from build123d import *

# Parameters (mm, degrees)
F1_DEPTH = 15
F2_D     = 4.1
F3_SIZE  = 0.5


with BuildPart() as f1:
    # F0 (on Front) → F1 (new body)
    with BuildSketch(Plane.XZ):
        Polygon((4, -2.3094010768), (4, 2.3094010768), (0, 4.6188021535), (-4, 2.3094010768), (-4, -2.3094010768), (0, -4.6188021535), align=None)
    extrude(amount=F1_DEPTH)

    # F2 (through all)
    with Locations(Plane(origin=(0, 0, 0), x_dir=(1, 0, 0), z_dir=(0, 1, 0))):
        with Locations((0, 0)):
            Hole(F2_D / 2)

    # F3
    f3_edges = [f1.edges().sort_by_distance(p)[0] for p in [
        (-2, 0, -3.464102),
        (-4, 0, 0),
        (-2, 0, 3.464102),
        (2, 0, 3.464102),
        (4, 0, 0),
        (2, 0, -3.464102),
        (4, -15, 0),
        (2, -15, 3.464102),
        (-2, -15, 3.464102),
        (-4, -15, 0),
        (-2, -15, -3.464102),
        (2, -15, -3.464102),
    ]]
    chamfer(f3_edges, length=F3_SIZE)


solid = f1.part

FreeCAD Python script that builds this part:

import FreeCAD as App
import Part
import Sketcher
from FreeCAD import Vector
Q = App.Units.Quantity


def edges_at(feature, points):
    """Names of the edges that pass closest to the given points."""
    edges = feature.Shape.Edges
    near = lambda p: min(range(len(edges)), key=lambda i: edges[i].distToShape(Part.Vertex(*p))[0])
    return sorted({f"Edge{near(p) + 1}" for p in points})


def add_polygon(sketch, points):
    """Adds a closed chain of lines whose ends are joined by coincident constraints."""
    first, n = sketch.GeometryCount, len(points)
    for a, b in zip(points, points[1:] + points[:1]):
        sketch.addGeometry(Part.LineSegment(App.Vector(*a, 0), App.Vector(*b, 0)), False)
    for i in range(n):
        sketch.addConstraint(Sketcher.Constraint("Coincident", first + i, 2, first + (i + 1) % n, 1))

doc = App.newDocument("Part")
body = doc.addObject("PartDesign::Body", "Body")

# Sketch on XZ plane
sketch1 = doc.addObject("Sketcher::SketchObject", "Sketch")
body.addObject(sketch1)
sketch1.AttachmentSupport = (doc.XZ_Plane, [""])
sketch1.MapMode = "FlatFace"
add_polygon(sketch1, [(4, -2.309401), (4, 2.309401), (0, 4.618802), (-4, 2.309401), (-4, -2.309401), (0, -4.618802)])  # lines 0-5
sketch1.addConstraint(Sketcher.Constraint("Vertical", 0))
sketch1.addConstraint(Sketcher.Constraint("Vertical", 3))
sketch1.addConstraint(Sketcher.Constraint("Symmetric", 0, 2, 3, 2, -1, 1))
sketch1.addConstraint(Sketcher.Constraint("Symmetric", 1, 2, 4, 2, -1, 1))
sketch1.addConstraint(Sketcher.Constraint("PointOnObject", 1, 2, -2))
sketch1.addConstraint(Sketcher.Constraint("Parallel", 2, 5))
sketch1.addConstraint(Sketcher.Constraint("Horizontal", 0, 2, 2, 2))
sketch1.addConstraint(Sketcher.Constraint("Angle", 1, Q("150 deg")))
sketch1.addConstraint(Sketcher.Constraint("DistanceX", -1, 1, 0, 2, Q("4 mm")))
sketch1.addConstraint(Sketcher.Constraint("DistanceY", -1, 1, 0, 2, Q("2.309401 mm")))
pad1 = doc.addObject("PartDesign::Pad", "Pad")
body.addObject(pad1)
pad1.Profile = sketch1
pad1.Length = 15

# Sketch on XZ plane
sketch2 = doc.addObject("Sketcher::SketchObject", "Sketch001")
body.addObject(sketch2)
sketch2.AttachmentSupport = (doc.XZ_Plane, [""])
sketch2.MapMode = "FlatFace"
sketch2.addGeometry(Part.Circle(Vector(0, 0, 0), Vector(0, 0, 1), 2.05), False)
sketch2.addConstraint(Sketcher.Constraint("Coincident", 0, 3, -1, 1))
sketch2.addConstraint(Sketcher.Constraint("Diameter", 0, Q("4.1 mm")))
doc.recompute()
hole = doc.addObject("PartDesign::Hole", "Hole")
body.addObject(hole)
hole.Profile = sketch2
hole.ThreadType = "None"
hole.Diameter = 4.1
hole.DepthType = "ThroughAll"
hole.Reversed = True
doc.recompute()

chamfer = doc.addObject("PartDesign::Chamfer", "Chamfer")
body.addObject(chamfer)
chamfer.Base = (hole, edges_at(hole, [
    (-2, 0, -3.464),
    (-4, 0, 0),
    (-2, 0, 3.464),
    (2, 0, 3.464),
    (4, 0, 0),
    (2, 0, -3.464),
    (4, -15, 0),
    (2, -15, 3.464),
    (-2, -15, 3.464),
    (-4, -15, 0),
    (-2, -15, -3.464),
    (2, -15, -3.464),
]))
chamfer.Size = 0.5

doc.recompute()
